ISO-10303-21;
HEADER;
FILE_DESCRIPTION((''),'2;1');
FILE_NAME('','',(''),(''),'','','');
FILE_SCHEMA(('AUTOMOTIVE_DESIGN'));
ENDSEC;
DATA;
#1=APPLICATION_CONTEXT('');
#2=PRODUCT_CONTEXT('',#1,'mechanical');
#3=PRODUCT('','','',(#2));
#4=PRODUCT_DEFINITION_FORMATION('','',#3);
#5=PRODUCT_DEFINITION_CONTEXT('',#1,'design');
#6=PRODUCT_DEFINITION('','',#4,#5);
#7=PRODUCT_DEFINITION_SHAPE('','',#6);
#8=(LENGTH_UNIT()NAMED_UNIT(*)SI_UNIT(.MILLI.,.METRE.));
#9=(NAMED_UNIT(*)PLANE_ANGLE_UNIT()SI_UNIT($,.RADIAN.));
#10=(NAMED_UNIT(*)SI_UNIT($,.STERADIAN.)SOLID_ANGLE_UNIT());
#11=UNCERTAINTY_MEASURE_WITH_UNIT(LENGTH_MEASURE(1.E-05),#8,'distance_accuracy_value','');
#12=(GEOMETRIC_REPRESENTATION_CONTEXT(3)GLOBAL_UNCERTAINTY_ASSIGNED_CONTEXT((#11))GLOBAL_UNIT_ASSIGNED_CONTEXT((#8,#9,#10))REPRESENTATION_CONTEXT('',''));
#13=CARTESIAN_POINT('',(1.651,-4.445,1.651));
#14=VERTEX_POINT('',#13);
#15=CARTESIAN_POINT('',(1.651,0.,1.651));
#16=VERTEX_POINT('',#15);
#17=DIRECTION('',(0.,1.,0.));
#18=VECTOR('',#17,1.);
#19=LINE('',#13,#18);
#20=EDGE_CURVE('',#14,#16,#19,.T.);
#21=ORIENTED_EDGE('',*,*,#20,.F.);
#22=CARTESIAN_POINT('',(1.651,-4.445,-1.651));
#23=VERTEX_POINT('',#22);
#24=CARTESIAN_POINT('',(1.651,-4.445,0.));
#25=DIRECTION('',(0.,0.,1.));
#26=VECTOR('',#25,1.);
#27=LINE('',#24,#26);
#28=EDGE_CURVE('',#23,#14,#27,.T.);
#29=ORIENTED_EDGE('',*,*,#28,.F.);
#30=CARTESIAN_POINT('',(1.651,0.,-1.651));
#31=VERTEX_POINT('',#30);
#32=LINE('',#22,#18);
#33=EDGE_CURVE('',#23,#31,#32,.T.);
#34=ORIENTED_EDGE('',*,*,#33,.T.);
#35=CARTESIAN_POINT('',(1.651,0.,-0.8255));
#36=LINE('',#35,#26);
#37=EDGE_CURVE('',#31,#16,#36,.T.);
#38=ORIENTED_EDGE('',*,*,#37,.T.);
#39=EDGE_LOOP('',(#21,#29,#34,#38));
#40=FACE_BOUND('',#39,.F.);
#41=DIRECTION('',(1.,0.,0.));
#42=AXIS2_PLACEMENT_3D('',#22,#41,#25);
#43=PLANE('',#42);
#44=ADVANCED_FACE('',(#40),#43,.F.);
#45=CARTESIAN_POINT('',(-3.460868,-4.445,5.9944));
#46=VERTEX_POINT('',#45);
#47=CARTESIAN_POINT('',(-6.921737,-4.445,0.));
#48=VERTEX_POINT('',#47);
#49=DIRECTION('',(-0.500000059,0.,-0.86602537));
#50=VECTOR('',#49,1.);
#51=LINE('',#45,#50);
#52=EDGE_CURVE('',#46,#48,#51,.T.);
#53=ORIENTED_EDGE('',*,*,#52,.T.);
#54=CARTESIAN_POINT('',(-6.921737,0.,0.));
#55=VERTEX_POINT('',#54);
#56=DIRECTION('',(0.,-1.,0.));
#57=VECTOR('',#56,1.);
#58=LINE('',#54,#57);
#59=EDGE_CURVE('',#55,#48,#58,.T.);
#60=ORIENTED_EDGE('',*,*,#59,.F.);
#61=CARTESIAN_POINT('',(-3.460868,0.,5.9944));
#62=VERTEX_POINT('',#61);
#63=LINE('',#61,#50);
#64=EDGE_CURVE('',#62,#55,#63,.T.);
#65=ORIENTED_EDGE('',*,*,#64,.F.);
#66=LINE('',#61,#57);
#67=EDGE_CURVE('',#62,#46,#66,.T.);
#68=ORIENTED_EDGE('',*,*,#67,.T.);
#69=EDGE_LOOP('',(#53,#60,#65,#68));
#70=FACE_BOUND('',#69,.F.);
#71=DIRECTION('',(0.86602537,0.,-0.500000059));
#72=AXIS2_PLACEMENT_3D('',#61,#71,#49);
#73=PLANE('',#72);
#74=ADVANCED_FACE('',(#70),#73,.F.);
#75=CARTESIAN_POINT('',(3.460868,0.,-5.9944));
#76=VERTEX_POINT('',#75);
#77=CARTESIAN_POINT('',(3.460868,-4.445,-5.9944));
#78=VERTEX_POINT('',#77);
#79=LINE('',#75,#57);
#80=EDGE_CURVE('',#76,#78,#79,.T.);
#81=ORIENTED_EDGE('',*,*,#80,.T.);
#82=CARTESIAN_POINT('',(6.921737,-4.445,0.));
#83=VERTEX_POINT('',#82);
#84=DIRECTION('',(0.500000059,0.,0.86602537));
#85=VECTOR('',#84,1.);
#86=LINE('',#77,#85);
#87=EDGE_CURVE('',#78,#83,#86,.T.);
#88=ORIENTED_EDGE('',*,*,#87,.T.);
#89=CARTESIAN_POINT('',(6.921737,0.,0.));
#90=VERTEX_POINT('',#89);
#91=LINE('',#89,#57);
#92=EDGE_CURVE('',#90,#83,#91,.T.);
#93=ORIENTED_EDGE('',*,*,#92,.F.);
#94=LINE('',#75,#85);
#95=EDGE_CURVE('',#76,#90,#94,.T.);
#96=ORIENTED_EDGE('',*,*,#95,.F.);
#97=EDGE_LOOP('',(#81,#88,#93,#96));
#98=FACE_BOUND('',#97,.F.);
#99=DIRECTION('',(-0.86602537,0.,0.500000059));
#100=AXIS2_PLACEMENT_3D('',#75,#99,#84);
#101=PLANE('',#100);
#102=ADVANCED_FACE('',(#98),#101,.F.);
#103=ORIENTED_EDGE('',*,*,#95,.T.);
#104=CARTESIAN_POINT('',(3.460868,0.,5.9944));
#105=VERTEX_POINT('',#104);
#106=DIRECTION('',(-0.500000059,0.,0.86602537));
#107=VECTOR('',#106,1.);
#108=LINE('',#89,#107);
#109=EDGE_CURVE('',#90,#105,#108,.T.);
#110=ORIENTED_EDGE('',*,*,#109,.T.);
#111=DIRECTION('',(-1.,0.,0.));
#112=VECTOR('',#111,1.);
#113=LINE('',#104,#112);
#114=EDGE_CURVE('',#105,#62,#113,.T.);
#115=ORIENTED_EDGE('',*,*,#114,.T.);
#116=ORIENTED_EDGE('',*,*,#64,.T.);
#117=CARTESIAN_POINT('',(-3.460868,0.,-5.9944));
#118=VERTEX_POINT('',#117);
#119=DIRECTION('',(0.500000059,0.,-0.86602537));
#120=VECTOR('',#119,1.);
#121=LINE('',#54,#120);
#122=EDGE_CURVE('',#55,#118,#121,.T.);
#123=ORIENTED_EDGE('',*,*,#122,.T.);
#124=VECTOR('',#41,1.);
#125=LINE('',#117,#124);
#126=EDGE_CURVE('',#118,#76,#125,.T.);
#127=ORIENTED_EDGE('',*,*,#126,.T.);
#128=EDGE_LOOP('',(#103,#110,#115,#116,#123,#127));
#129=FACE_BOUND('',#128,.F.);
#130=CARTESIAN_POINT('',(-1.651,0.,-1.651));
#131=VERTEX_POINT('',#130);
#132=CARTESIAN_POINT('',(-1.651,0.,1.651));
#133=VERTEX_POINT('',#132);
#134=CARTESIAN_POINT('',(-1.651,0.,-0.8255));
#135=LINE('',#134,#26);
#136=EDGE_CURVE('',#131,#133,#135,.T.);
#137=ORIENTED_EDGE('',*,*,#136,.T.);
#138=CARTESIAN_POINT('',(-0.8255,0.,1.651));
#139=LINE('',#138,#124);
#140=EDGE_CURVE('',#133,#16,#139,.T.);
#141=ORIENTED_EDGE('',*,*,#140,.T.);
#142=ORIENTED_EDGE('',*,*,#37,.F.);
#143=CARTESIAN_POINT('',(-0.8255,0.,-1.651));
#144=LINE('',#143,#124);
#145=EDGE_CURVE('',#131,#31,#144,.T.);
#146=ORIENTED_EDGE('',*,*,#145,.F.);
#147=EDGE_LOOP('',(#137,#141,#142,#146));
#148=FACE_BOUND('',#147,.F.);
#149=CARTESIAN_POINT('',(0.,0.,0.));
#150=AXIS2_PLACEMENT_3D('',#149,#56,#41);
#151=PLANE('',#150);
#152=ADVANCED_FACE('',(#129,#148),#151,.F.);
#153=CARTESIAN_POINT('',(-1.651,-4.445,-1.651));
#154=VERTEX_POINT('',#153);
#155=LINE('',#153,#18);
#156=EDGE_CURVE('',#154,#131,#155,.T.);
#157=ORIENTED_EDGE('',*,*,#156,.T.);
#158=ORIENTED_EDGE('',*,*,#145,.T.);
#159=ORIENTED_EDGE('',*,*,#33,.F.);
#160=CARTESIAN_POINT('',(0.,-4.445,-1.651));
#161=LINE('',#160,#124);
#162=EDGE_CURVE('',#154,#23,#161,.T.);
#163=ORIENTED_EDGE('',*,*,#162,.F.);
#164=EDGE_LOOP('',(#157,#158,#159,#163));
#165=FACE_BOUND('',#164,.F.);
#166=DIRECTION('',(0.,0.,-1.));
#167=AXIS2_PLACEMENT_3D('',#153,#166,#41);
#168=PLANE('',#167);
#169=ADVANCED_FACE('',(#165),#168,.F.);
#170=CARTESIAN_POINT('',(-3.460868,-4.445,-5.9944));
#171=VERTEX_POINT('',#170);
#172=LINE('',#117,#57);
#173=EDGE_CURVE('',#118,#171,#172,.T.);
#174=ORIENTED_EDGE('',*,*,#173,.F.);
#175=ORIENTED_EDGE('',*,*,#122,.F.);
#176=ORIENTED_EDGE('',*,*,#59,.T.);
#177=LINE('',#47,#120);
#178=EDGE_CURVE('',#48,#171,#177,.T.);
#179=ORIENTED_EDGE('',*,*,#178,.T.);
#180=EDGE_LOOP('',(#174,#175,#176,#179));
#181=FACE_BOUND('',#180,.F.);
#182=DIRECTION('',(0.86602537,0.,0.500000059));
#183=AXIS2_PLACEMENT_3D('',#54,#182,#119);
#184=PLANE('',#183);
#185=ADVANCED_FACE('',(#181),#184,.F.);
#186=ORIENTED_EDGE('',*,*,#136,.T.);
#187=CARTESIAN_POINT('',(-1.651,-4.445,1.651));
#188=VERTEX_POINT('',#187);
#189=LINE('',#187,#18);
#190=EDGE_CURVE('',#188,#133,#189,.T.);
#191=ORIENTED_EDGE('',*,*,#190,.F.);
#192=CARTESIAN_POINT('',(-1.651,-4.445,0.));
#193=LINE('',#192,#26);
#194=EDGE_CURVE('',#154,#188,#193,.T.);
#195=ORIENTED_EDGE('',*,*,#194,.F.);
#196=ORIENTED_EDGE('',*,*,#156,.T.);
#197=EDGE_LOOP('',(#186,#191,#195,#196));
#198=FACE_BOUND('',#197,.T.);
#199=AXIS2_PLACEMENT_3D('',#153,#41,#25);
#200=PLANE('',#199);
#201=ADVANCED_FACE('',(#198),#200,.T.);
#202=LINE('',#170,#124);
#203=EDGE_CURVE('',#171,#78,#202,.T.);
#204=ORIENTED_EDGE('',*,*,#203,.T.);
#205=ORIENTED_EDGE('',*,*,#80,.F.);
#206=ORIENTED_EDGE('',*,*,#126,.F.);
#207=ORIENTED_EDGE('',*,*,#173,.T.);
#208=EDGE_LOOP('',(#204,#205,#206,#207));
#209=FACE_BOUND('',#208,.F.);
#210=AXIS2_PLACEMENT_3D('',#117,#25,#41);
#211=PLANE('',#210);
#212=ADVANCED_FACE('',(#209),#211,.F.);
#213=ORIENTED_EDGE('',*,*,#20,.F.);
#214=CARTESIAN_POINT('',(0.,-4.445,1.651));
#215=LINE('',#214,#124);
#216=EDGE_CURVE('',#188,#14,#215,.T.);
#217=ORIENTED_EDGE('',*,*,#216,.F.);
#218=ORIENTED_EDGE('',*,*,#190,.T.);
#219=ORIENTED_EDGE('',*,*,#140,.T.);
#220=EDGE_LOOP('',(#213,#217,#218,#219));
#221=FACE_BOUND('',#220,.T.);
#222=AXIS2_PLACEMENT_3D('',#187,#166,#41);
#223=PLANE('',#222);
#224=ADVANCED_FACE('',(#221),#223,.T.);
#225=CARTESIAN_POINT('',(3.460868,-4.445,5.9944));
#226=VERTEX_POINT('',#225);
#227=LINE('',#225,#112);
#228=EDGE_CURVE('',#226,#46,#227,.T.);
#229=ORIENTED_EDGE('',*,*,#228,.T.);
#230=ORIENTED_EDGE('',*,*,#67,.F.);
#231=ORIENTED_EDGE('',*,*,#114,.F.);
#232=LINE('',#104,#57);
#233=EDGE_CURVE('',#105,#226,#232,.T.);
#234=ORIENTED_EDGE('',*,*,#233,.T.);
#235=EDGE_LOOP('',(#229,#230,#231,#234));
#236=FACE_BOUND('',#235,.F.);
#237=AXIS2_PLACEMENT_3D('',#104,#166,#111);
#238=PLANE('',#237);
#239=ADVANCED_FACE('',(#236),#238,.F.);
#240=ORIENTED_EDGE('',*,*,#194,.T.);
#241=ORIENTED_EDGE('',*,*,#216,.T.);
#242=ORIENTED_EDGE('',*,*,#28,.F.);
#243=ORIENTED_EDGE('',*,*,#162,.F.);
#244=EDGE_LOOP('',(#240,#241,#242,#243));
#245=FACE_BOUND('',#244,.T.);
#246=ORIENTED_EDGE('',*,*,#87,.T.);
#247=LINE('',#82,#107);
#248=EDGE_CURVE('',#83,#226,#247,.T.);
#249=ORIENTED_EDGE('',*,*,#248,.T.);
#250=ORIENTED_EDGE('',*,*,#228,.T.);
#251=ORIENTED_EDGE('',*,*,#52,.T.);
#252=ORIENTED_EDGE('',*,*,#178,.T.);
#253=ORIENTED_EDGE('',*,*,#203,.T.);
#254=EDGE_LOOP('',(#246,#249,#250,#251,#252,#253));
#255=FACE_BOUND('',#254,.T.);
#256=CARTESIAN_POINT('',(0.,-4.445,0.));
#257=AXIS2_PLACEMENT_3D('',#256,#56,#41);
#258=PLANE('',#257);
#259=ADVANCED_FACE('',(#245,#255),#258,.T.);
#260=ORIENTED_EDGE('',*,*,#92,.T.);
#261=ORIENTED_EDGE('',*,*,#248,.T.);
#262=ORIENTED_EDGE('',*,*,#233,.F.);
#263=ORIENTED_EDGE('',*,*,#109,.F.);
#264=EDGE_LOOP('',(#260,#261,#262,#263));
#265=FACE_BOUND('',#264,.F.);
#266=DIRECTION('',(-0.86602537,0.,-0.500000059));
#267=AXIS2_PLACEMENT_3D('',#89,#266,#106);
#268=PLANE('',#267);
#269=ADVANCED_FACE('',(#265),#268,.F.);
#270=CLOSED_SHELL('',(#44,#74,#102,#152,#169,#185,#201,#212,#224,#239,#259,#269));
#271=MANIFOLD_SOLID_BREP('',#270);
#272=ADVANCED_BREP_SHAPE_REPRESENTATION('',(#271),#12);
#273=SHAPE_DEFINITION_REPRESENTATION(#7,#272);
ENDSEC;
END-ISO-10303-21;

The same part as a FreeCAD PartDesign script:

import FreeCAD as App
import Part
import Sketcher
Q = App.Units.Quantity

doc = App.newDocument("Part")
body = doc.addObject("PartDesign::Body", "Body")

sketch1 = body.newObject("Sketcher::SketchObject", "Sketch")
sketch1.AttachmentSupport = (doc.getObject("XZ_Plane"), [""])
sketch1.MapMode = "FlatFace"
sketch1.addGeometry([
    Part.LineSegment(App.Vector(3.460868, 5.9944, 0), App.Vector(-3.460868, 5.9944, 0)),
    Part.LineSegment(App.Vector(-3.460868, 5.9944, 0), App.Vector(-6.921737, 0, 0)),
    Part.LineSegment(App.Vector(-6.921737, 0, 0), App.Vector(-3.460868, -5.9944, 0)),
    Part.LineSegment(App.Vector(-3.460868, -5.9944, 0), App.Vector(3.460868, -5.9944, 0)),
    Part.LineSegment(App.Vector(3.460868, -5.9944, 0), App.Vector(6.921737, 0, 0)),
    Part.LineSegment(App.Vector(6.921737, 0, 0), App.Vector(3.460868, 5.9944, 0)),
], False)
sketch1.addConstraint([
    Sketcher.Constraint("Coincident", 0, 2, 1, 1),
    Sketcher.Constraint("Coincident", 1, 2, 2, 1),
    Sketcher.Constraint("Coincident", 2, 2, 3, 1),
    Sketcher.Constraint("Coincident", 3, 2, 4, 1),
    Sketcher.Constraint("Coincident", 4, 2, 5, 1),
    Sketcher.Constraint("Coincident", 5, 2, 0, 1),
    Sketcher.Constraint("Horizontal", 0),
    Sketcher.Constraint("Horizontal", 3),
    Sketcher.Constraint("Symmetric", 0, 2, 3, 2, -1, 1),
    Sketcher.Constraint("Symmetric", 1, 2, 4, 2, -1, 1),
    Sketcher.Constraint("PointOnObject", 1, 2, -1),
    Sketcher.Constraint("Parallel", 2, 5),
    Sketcher.Constraint("Vertical", 0, 2, 2, 2),
    Sketcher.Constraint("Angle", 1, Q("-120.000004 deg")),
    Sketcher.Constraint("DistanceY", -1, 1, 0, 2, Q("0.236 in")),
    Sketcher.Constraint("DistanceX", 0, 2, 0, 1, 6.921736),
])
pad1 = body.newObject("PartDesign::Pad", "Pad")
pad1.Profile = sketch1
pad1.Length = Q("0.175 in")

sketch2 = body.newObject("Sketcher::SketchObject", "Sketch001")
sketch2.AttachmentSupport = (doc.getObject("XZ_Plane"), [""])
sketch2.MapMode = "FlatFace"
sketch2.AttachmentOffset = App.Placement(App.Vector(0, 0, 0.175 * 25.4), App.Rotation())
sketch2.addGeometry([
    Part.LineSegment(App.Vector(-1.651, 1.651, 0), App.Vector(-1.651, -1.651, 0)),
    Part.LineSegment(App.Vector(-1.651, -1.651, 0), App.Vector(1.651, -1.651, 0)),
    Part.LineSegment(App.Vector(1.651, -1.651, 0), App.Vector(1.651, 1.651, 0)),
    Part.LineSegment(App.Vector(1.651, 1.651, 0), App.Vector(-1.651, 1.651, 0)),
], False)
sketch2.addConstraint([
    Sketcher.Constraint("Coincident", 0, 2, 1, 1),
    Sketcher.Constraint("Coincident", 1, 2, 2, 1),
    Sketcher.Constraint("Coincident", 2, 2, 3, 1),
    Sketcher.Constraint("Coincident", 3, 2, 0, 1),
    Sketcher.Constraint("Vertical", 0),
    Sketcher.Constraint("Horizontal", 1),
    Sketcher.Constraint("Vertical", 2),
    Sketcher.Constraint("Horizontal", 3),
    Sketcher.Constraint("Symmetric", 0, 2, 2, 2, -1, 1),
    Sketcher.Constraint("Equal", 3, 0),
    Sketcher.Constraint("DistanceX", 1, 1, 1, 2, Q("0.13 in")),
])
pocket1 = body.newObject("PartDesign::Pocket", "Pocket")
pocket1.Profile = sketch2
pocket1.Length = Q("1 in")

doc.recompute()
